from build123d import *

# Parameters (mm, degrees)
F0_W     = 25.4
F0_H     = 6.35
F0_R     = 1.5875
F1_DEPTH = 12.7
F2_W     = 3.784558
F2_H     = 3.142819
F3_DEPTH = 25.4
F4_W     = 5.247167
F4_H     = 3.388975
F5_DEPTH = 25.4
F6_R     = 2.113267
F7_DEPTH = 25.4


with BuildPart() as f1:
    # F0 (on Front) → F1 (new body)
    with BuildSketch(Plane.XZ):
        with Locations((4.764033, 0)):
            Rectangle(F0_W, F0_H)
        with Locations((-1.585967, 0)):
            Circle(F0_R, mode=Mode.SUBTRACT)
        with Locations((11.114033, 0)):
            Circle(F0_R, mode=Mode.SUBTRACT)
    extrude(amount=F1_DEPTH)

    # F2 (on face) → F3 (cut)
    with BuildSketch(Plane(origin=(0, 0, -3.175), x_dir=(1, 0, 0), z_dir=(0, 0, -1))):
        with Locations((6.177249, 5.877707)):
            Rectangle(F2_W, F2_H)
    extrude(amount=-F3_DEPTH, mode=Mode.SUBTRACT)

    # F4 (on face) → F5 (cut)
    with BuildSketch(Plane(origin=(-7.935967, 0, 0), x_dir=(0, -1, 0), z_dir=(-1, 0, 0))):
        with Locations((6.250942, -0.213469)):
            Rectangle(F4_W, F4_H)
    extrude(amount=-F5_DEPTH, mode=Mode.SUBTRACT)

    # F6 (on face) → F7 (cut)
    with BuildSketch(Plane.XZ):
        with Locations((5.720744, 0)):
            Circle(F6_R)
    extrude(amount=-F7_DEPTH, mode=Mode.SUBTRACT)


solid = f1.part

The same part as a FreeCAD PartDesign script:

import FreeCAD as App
import Part
import Sketcher
from FreeCAD import Vector
Q = App.Units.Quantity


def add_polygon(sketch, points):
    """Adds a closed chain of lines whose ends are joined by coincident constraints."""
    first, n = sketch.GeometryCount, len(points)
    for a, b in zip(points, points[1:] + points[:1]):
        sketch.addGeometry(Part.LineSegment(App.Vector(*a, 0), App.Vector(*b, 0)), False)
    for i in range(n):
        sketch.addConstraint(Sketcher.Constraint("Coincident", first + i, 2, first + (i + 1) % n, 1))

doc = App.newDocument("Part")
body = doc.addObject("PartDesign::Body", "Body")

sketch1 = body.newObject("Sketcher::SketchObject", "Sketch")
sketch1.AttachmentSupport = (doc.getObject("XZ_Plane"), [""])
sketch1.MapMode = "FlatFace"
add_polygon(sketch1, [(-7.9, 3.2), (-7.9, -3.2), (17.5, -3.2), (17.5, 3.2)])
sketch1.addGeometry(Part.Circle(Vector(-1.6, 0, 0), Vector(0, 0, 1), 1.6), False)
sketch1.addGeometry(Part.Circle(Vector(11.1, 0, 0), Vector(0, 0, 1), 1.6), False)
sketch1.addConstraint(Sketcher.Constraint("Vertical", 0))
sketch1.addConstraint(Sketcher.Constraint("Horizontal", 1))
sketch1.addConstraint(Sketcher.Constraint("Vertical", 2))
sketch1.addConstraint(Sketcher.Constraint("Horizontal", 3))
sketch1.addConstraint(Sketcher.Constraint("Equal", 4, 5))
sketch1.addConstraint(Sketcher.Constraint("PointOnObject", 4, 3, -1))
sketch1.addConstraint(Sketcher.Constraint("PointOnObject", 5, 3, -1))
sketch1.addConstraint(Sketcher.Constraint("DistanceX", 1, 1, 1, 2, Q("1 in")))
sketch1.addConstraint(Sketcher.Constraint("Diameter", 4, Q("0.125 in")))
sketch1.addConstraint(Sketcher.Constraint("DistanceY", 0, 2, 0, 1, Q("0.25 in")))
sketch1.addConstraint(Sketcher.Constraint("DistanceX", 4, 3, 5, 3, Q("0.5 in")))
sketch1.addConstraint(Sketcher.Constraint("DistanceX", 0, 2, 4, 3, Q("0.25 in")))
sketch1.addConstraint(Sketcher.Constraint("DistanceY", 0, 2, -1, 1, Q("0.125 in")))
sketch1.addConstraint(Sketcher.Constraint("DistanceX", 4, 3, -1, 1, Q("1.585967 mm")))
pad1 = body.newObject("PartDesign::Pad", "Pad")
pad1.Profile = sketch1
pad1.Length = Q("0.5 in")

sketch2 = body.newObject("Sketcher::SketchObject", "Sketch001")
sketch2.AttachmentSupport = (doc.getObject("XY_Plane"), [""])
sketch2.MapMode = "FlatFace"
sketch2.AttachmentOffset = App.Placement(Vector(0, 0, -0.125 * 25.4), App.Rotation())
add_polygon(sketch2, [(4.3, -7.4), (4.3, -4.3), (8.1, -4.3), (8.1, -7.4)])
sketch2.addConstraint(Sketcher.Constraint("Vertical", 0))
sketch2.addConstraint(Sketcher.Constraint("Horizontal", 1))
sketch2.addConstraint(Sketcher.Constraint("Vertical", 2))
sketch2.addConstraint(Sketcher.Constraint("Horizontal", 3))
sketch2.addConstraint(Sketcher.Constraint("DistanceY", 0, 1, 0, 2, Q("3.142819 mm")))
sketch2.addConstraint(Sketcher.Constraint("DistanceX", 1, 1, 1, 2, Q("3.784558 mm")))
sketch2.addConstraint(Sketcher.Constraint("DistanceX", -1, 1, 0, 2, Q("4.28497 mm")))
sketch2.addConstraint(Sketcher.Constraint("DistanceY", 0, 2, -1, 1, Q("4.306298 mm")))
pocket1 = body.newObject("PartDesign::Pocket", "Pocket")
pocket1.Profile = sketch2
pocket1.Length = Q("1 in")
pocket1.Reversed = True

sketch3 = body.newObject("Sketcher::SketchObject", "Sketch002")
sketch3.AttachmentSupport = (doc.getObject("YZ_Plane"), [""])
sketch3.MapMode = "FlatFace"
sketch3.AttachmentOffset = App.Placement(Vector(0, 0, -7.935967), App.Rotation())
add_polygon(sketch3, [(-3.6, 1.5), (-3.6, -1.9), (-8.9, -1.9), (-8.9, 1.5)])
sketch3.addConstraint(Sketcher.Constraint("Vertical", 0))
sketch3.addConstraint(Sketcher.Constraint("Horizontal", 1))
sketch3.addConstraint(Sketcher.Constraint("Vertical", 2))
sketch3.addConstraint(Sketcher.Constraint("Horizontal", 3))
sketch3.addConstraint(Sketcher.Constraint("DistanceX", 1, 2, 1, 1, Q("5.247167 mm")))
sketch3.addConstraint(Sketcher.Constraint("DistanceY", 0, 2, 0, 1, Q("3.388975 mm")))
sketch3.addConstraint(Sketcher.Constraint("DistanceX", 0, 2, -1, 1, Q("3.627359 mm")))
sketch3.addConstraint(Sketcher.Constraint("DistanceY", -1, 1, 2, 2, Q("1.481019 mm")))
pocket2 = body.newObject("PartDesign::Pocket", "Pocket001")
pocket2.Profile = sketch3
pocket2.Length = Q("1 in")
pocket2.Reversed = True

sketch4 = body.newObject("Sketcher::SketchObject", "Sketch003")
sketch4.AttachmentSupport = (doc.getObject("XZ_Plane"), [""])
sketch4.MapMode = "FlatFace"
sketch4.addGeometry(Part.Circle(Vector(5.7, 0, 0), Vector(0, 0, 1), 2.1), False)
sketch4.addConstraint(Sketcher.Constraint("PointOnObject", 0, 3, -1))
sketch4.addConstraint(Sketcher.Constraint("Diameter", 0, Q("4.226534 mm")))
sketch4.addConstraint(Sketcher.Constraint("DistanceX", -1, 1, 0, 3, Q("5.720744 mm")))
pocket3 = body.newObject("PartDesign::Pocket", "Pocket002")
pocket3.Profile = sketch4
pocket3.Length = Q("1 in")

doc.recompute()
